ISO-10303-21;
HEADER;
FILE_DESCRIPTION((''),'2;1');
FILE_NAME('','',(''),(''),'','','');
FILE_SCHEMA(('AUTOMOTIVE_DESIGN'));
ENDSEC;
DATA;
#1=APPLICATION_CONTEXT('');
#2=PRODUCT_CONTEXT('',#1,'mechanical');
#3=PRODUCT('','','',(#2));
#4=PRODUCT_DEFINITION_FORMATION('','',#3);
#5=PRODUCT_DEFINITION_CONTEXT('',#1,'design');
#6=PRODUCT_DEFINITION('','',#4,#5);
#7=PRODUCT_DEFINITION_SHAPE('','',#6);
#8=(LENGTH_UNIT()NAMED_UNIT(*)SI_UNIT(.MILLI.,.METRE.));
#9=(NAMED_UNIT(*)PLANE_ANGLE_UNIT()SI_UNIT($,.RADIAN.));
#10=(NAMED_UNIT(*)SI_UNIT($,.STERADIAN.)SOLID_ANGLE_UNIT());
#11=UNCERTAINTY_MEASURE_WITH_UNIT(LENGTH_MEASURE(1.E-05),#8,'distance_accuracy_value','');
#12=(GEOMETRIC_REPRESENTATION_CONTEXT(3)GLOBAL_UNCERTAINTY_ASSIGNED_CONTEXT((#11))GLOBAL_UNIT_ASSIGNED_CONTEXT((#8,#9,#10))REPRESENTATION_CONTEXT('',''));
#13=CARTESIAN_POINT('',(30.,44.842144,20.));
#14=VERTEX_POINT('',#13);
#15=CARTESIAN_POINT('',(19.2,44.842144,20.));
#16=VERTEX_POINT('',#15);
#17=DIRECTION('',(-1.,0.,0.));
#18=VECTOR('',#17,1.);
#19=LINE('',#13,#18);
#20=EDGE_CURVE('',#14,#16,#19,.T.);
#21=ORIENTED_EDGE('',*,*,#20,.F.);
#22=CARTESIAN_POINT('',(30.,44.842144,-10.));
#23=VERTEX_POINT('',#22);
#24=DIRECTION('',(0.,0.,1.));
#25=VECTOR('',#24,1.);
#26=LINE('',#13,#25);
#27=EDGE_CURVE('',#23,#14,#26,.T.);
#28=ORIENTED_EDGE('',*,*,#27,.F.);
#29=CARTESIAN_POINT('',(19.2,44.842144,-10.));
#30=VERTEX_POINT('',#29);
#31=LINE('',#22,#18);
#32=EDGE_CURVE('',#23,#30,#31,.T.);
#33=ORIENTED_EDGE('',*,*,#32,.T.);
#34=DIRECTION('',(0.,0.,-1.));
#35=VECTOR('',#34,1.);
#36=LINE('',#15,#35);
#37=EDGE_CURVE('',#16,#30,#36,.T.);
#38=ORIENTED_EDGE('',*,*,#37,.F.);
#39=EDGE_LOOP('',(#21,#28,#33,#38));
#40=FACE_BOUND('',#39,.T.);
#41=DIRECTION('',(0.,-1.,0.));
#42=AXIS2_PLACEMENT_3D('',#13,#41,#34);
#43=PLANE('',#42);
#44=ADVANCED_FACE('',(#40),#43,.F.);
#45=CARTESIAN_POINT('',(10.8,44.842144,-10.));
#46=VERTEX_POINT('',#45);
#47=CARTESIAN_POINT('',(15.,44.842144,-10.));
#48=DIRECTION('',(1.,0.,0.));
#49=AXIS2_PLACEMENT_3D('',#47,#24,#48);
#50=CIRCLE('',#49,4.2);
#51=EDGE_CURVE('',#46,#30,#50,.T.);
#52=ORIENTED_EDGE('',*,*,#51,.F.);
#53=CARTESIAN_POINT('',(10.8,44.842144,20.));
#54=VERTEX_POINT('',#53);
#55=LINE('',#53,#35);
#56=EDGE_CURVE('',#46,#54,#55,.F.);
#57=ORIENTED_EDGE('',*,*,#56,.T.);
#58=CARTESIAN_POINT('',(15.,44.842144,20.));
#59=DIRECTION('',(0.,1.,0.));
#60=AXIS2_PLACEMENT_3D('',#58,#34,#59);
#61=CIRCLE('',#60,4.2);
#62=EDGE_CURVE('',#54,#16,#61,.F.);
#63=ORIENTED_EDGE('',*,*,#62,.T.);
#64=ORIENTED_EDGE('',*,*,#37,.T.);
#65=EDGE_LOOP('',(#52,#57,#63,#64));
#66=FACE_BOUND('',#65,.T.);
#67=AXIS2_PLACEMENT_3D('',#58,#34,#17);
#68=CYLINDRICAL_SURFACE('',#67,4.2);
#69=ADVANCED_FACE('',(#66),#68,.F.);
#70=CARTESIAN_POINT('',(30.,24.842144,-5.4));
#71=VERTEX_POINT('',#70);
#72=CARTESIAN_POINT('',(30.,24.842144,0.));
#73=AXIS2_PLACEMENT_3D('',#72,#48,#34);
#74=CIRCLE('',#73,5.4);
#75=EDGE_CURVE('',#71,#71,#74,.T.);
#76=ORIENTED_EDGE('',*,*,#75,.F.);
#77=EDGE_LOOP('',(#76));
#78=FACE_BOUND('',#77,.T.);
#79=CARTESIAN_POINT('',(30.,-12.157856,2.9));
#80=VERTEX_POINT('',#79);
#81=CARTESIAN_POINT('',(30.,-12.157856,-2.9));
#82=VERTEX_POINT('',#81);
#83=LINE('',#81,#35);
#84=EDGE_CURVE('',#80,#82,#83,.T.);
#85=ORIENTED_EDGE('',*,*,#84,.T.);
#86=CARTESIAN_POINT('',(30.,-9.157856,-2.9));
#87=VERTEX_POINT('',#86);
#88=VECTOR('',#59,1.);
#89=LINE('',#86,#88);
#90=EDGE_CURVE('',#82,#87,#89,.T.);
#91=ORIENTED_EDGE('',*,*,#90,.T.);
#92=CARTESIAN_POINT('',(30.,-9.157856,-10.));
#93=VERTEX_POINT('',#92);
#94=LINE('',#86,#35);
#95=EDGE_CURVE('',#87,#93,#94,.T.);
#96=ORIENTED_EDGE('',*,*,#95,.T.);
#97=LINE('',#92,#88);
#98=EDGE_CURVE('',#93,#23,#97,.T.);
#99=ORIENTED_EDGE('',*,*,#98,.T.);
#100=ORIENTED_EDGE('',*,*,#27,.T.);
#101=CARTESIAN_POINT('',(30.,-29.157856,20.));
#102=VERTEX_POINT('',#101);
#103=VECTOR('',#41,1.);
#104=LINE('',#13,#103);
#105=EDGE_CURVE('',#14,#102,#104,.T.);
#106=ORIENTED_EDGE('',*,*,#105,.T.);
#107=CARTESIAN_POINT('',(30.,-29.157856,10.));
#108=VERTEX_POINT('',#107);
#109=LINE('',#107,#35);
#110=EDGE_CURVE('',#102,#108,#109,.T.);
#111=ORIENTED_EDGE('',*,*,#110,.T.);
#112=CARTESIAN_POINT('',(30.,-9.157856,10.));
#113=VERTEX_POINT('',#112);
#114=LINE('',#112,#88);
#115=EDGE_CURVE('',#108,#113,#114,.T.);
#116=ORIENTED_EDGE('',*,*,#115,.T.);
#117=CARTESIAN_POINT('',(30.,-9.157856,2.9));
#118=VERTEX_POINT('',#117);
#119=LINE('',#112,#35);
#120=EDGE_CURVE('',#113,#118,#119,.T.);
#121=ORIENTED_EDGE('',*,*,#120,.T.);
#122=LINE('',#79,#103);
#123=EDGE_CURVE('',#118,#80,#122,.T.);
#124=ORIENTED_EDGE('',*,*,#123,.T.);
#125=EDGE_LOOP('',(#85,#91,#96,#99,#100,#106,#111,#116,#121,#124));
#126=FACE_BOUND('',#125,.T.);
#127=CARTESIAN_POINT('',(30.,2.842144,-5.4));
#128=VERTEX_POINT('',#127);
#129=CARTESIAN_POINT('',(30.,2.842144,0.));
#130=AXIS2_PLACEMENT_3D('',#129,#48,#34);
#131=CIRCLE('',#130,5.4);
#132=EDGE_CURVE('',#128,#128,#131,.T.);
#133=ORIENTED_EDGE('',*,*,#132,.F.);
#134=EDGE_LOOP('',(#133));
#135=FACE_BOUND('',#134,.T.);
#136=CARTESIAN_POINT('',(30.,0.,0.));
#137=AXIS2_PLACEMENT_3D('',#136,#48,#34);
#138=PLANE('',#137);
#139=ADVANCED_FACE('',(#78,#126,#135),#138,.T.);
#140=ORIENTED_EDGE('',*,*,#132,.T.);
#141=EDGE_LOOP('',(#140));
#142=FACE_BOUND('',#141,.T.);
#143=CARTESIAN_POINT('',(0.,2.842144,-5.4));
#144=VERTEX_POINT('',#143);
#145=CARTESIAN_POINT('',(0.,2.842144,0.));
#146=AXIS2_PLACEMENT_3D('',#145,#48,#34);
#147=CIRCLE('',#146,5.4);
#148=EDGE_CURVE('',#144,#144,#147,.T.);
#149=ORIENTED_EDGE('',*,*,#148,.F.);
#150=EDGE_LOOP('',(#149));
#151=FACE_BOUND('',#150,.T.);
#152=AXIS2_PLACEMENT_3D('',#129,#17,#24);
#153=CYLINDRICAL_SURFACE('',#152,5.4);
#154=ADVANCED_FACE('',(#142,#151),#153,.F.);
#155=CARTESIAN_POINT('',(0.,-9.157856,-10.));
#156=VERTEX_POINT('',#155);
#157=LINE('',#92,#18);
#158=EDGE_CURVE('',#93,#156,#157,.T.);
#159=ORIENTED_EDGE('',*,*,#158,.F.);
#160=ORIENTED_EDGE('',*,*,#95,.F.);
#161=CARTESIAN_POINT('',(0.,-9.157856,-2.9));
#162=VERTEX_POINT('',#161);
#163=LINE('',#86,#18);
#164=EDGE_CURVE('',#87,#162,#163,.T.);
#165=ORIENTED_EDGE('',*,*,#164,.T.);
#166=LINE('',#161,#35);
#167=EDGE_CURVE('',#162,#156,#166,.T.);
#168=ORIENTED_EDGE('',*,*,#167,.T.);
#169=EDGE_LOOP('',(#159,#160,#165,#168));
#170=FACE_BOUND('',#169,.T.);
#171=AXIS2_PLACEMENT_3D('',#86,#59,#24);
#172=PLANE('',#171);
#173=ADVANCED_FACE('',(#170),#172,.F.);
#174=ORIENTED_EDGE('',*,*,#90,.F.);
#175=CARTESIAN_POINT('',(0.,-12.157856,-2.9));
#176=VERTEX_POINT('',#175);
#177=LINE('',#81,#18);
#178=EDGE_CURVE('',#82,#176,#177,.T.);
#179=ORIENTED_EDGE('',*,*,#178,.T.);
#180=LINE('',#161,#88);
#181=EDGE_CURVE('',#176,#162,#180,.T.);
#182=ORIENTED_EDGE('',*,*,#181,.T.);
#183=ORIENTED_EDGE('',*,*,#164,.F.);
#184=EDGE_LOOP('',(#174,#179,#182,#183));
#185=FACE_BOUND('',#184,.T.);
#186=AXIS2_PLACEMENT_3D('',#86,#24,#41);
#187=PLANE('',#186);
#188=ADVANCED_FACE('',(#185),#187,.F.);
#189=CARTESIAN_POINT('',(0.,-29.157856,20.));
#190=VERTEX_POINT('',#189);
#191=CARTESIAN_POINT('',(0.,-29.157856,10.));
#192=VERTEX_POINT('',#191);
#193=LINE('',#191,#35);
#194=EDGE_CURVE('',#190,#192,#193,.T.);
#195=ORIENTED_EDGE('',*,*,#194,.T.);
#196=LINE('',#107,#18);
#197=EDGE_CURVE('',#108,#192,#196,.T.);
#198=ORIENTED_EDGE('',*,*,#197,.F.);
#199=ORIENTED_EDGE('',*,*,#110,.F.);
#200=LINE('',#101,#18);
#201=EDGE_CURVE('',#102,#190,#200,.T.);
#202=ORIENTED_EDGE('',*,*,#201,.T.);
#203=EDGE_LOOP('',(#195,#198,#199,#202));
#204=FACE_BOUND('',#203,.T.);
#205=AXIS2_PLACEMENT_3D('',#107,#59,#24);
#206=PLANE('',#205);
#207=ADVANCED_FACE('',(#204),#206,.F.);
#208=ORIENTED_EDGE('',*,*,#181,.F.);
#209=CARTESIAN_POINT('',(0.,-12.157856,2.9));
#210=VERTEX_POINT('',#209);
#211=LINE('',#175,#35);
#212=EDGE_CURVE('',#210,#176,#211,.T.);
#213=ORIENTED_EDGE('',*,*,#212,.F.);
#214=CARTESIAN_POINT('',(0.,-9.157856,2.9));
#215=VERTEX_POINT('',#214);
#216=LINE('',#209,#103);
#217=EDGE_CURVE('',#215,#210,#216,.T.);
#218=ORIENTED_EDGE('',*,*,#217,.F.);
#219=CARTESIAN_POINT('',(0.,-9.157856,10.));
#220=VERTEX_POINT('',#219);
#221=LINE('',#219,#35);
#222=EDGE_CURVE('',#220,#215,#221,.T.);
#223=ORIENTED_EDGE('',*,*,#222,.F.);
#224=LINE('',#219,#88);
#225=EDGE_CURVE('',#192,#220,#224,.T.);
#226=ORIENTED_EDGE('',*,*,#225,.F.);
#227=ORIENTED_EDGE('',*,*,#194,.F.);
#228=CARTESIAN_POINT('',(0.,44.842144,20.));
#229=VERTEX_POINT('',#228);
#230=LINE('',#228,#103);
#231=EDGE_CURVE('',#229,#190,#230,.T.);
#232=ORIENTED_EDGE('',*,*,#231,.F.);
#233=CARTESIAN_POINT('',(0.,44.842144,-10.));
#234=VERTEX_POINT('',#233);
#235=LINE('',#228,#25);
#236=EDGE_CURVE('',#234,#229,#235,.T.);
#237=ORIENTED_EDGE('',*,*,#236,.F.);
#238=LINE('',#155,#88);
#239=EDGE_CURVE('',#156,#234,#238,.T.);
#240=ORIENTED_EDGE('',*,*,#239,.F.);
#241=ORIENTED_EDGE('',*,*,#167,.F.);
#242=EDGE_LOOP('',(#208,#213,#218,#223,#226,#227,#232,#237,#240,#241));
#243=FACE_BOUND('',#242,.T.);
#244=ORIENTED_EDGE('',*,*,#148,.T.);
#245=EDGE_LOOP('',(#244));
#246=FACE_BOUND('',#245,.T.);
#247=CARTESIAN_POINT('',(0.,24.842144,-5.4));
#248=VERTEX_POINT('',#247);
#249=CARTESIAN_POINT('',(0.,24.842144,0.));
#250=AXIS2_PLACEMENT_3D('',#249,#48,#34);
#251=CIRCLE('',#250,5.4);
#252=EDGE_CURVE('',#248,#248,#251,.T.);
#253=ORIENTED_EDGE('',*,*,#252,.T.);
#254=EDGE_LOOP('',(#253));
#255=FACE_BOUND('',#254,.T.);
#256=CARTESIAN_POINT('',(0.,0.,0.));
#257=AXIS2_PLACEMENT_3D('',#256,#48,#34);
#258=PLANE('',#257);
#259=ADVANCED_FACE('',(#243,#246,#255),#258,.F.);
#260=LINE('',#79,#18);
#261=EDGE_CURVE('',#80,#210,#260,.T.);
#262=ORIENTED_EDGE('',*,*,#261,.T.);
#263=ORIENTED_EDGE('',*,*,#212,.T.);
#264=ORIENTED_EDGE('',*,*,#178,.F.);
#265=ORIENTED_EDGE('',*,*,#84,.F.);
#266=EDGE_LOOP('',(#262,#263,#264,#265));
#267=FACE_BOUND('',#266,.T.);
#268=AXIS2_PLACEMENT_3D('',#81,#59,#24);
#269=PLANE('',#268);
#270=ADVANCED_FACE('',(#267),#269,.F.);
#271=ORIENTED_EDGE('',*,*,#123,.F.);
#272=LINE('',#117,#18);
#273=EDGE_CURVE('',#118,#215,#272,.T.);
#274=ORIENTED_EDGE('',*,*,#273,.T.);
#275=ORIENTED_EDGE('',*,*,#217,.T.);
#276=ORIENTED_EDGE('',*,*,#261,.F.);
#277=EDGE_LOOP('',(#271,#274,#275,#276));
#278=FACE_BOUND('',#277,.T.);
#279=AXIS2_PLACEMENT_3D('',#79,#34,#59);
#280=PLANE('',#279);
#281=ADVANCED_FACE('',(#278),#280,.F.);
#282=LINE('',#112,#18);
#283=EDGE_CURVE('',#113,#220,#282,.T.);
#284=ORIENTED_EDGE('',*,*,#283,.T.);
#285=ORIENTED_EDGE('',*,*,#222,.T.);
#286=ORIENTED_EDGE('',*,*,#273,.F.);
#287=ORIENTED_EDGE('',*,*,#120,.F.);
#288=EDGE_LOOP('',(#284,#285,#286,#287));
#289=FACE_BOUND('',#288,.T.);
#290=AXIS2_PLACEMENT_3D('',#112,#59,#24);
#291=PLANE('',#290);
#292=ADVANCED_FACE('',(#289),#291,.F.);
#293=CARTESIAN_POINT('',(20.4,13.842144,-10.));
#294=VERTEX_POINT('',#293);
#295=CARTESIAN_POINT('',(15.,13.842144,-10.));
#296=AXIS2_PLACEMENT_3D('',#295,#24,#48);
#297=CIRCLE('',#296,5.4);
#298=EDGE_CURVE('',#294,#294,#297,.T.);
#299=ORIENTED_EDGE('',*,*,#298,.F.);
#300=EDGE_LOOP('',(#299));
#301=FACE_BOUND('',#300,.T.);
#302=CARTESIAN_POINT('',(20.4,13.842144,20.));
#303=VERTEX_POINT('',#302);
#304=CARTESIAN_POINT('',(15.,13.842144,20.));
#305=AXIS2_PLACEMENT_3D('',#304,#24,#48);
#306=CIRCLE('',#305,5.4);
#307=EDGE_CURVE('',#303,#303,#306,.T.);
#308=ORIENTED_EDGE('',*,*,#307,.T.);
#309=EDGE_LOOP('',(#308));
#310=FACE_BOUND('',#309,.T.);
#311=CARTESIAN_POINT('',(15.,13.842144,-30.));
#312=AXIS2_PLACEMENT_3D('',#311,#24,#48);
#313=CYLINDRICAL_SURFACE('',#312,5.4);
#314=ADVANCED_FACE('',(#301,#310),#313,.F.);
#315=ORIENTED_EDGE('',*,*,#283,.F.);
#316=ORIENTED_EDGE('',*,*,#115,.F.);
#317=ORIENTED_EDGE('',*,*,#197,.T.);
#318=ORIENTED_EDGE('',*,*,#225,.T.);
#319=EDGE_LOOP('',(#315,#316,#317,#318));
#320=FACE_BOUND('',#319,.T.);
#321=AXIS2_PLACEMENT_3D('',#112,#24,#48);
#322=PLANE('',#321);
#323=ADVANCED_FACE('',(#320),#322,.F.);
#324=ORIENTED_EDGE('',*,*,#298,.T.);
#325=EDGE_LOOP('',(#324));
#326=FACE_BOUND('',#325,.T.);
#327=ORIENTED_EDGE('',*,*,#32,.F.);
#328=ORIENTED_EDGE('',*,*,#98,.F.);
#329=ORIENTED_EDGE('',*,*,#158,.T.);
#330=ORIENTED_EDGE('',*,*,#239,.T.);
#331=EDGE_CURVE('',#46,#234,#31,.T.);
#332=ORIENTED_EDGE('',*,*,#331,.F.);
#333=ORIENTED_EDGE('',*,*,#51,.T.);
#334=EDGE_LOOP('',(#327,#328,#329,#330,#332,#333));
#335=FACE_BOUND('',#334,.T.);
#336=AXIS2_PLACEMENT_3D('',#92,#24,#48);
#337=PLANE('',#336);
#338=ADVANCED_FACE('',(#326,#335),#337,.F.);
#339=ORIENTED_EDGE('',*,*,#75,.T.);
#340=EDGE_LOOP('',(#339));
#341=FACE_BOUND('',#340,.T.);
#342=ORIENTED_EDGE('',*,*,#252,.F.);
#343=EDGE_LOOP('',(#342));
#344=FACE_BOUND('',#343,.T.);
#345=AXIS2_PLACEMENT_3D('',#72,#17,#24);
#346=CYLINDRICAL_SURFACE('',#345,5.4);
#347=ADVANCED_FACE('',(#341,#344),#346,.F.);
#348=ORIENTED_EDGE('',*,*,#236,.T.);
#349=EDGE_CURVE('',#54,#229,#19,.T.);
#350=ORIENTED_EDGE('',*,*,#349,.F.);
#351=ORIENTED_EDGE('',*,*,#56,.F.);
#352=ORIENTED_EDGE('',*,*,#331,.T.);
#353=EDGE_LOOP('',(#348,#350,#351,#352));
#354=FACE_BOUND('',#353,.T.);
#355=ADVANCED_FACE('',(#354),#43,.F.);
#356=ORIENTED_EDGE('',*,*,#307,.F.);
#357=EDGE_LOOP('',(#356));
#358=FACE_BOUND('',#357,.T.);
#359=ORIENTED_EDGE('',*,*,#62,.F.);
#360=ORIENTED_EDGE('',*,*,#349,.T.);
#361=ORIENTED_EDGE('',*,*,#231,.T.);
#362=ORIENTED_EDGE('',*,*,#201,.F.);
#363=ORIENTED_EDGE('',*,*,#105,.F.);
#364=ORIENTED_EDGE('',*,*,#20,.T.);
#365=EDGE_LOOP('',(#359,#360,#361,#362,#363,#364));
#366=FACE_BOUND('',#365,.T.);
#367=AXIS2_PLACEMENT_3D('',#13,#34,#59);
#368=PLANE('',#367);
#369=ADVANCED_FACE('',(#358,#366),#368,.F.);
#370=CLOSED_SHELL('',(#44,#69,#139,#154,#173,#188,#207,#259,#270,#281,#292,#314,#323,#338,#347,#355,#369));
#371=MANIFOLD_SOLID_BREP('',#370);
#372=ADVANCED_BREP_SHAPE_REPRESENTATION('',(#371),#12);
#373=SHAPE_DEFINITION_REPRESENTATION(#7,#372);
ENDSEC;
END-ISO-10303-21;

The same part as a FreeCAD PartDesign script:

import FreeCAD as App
import Part
import Sketcher

doc = App.newDocument("Part")
body = doc.addObject("PartDesign::Body", "Body")

# Sketch on YZ plane
sketch1 = body.newObject("Sketcher::SketchObject", "Sketch")
sketch1.AttachmentSupport = (doc.getObject("YZ_Plane"), [""])
sketch1.MapMode = "FlatFace"
sketch1.addGeometry([
    Part.LineSegment(App.Vector(-9.2, -10, 0), App.Vector(44.8, -10, 0)),  # 0
    Part.LineSegment(App.Vector(44.8, -10, 0), App.Vector(44.8, 20, 0)),  # 1
    Part.LineSegment(App.Vector(44.8, 20, 0), App.Vector(-29.2, 20, 0)),  # 2
    Part.LineSegment(App.Vector(-29.2, 20, 0), App.Vector(-29.2, 10, 0)),  # 3
    Part.LineSegment(App.Vector(-29.2, 10, 0), App.Vector(-9.2, 10, 0)),  # 4
    Part.LineSegment(App.Vector(-9.2, 10, 0), App.Vector(-9.2, 2.9, 0)),  # 5
    Part.LineSegment(App.Vector(-9.2, 2.9, 0), App.Vector(-12.2, 2.9, 0)),  # 6
    Part.LineSegment(App.Vector(-12.2, 2.9, 0), App.Vector(-12.2, -2.9, 0)),  # 7
    Part.LineSegment(App.Vector(-12.2, -2.9, 0), App.Vector(-9.2, -2.9, 0)),  # 8
    Part.LineSegment(App.Vector(-9.2, -2.9, 0), App.Vector(-9.2, -10, 0)),  # 9
    Part.Circle(App.Vector(2.8, 0, 0), App.Vector(0, 0, 1), 5.4),  # 10
    Part.Circle(App.Vector(24.8, 0, 0), App.Vector(0, 0, 1), 5.4),  # 11
], False)
sketch1.addConstraint([
    Sketcher.Constraint("Coincident", 0, 2, 1, 1),
    Sketcher.Constraint("Coincident", 1, 2, 2, 1),
    Sketcher.Constraint("Coincident", 2, 2, 3, 1),
    Sketcher.Constraint("Coincident", 3, 2, 4, 1),
    Sketcher.Constraint("Coincident", 4, 2, 5, 1),
    Sketcher.Constraint("Coincident", 5, 2, 6, 1),
    Sketcher.Constraint("Coincident", 6, 2, 7, 1),
    Sketcher.Constraint("Coincident", 7, 2, 8, 1),
    Sketcher.Constraint("Coincident", 8, 2, 9, 1),
    Sketcher.Constraint("Coincident", 9, 2, 0, 1),
    Sketcher.Constraint("Horizontal", 0),
    Sketcher.Constraint("Vertical", 1),
    Sketcher.Constraint("Horizontal", 2),
    Sketcher.Constraint("Vertical", 3),
    Sketcher.Constraint("Horizontal", 4),
    Sketcher.Constraint("Vertical", 5),
    Sketcher.Constraint("Horizontal", 6),
    Sketcher.Constraint("Vertical", 7),
    Sketcher.Constraint("Horizontal", 8),
    Sketcher.Constraint("Vertical", 9),
    Sketcher.Constraint("Equal", 10, 11),
    Sketcher.Constraint("Symmetric", 5, 2, 8, 2, -1),
    Sketcher.Constraint("PointOnObject", 10, 3, -1),
    Sketcher.Constraint("PointOnObject", 11, 3, -1),
    Sketcher.Constraint("Equal", 5, 9),
    Sketcher.Constraint("Diameter", 10, 10.8),
    Sketcher.Constraint("DistanceX", 0, 1, 0, 2, 54.0),
    Sketcher.Constraint("DistanceX", 2, 2, 2, 1, 74.0),
    Sketcher.Constraint("DistanceX", 6, 2, 6, 1, 3.0),
    Sketcher.Constraint("DistanceY", 1, 1, 1, 2, 30.0),
    Sketcher.Constraint("DistanceY", 3, 2, 3, 1, 10.0),
    Sketcher.Constraint("DistanceY", 5, 2, 5, 1, 7.1),
    Sketcher.Constraint("DistanceX", 10, 3, 11, 3, 22.0),
    Sketcher.Constraint("DistanceX", 11, 3, 0, 2, 20.0),
    Sketcher.Constraint("DistanceX", -1, 1, 10, 3, 2.842144),
])
pad1 = body.newObject("PartDesign::Pad", "Pad")
pad1.Profile = sketch1
pad1.Length = 30

# Sketch on XY plane
sketch2 = body.newObject("Sketcher::SketchObject", "Sketch001")
sketch2.AttachmentSupport = (doc.getObject("XY_Plane"), [""])
sketch2.MapMode = "FlatFace"
sketch2.AttachmentOffset = App.Placement(App.Vector(0, 0, -10), App.Rotation())
sketch2.addGeometry(Part.Circle(App.Vector(15, 44.8, 0), App.Vector(0, 0, 1), 4.2), False)
sketch2.addConstraint([
    Sketcher.Constraint("Diameter", 0, 8.4),
    Sketcher.Constraint("DistanceX", -1, 1, 0, 3, 15.0),
    Sketcher.Constraint("DistanceY", -1, 1, 0, 3, 44.842144),
])
pocket1 = body.newObject("PartDesign::Pocket", "Pocket")
pocket1.Profile = sketch2
pocket1.Type = "ThroughAll"
pocket1.Reversed = True

# Sketch on XY plane
sketch3 = body.newObject("Sketcher::SketchObject", "Sketch002")
sketch3.AttachmentSupport = (doc.getObject("XY_Plane"), [""])
sketch3.MapMode = "FlatFace"
sketch3.AttachmentOffset = App.Placement(App.Vector(0, 0, 20), App.Rotation())
sketch3.addGeometry(Part.Circle(App.Vector(15, 14, 0), App.Vector(0, 0, 1), 5), False)
sketch3.addConstraint([
    Sketcher.Constraint("Diameter", 0, 10.8),
    Sketcher.Constraint("DistanceX", -1, 1, 0, 3, 15.0),
    Sketcher.Constraint("DistanceY", -1, 1, 0, 3, 13.842144),
])
pocket2 = body.newObject("PartDesign::Pocket", "Pocket001")
pocket2.Profile = sketch3
pocket2.Length = 50

doc.recompute()
